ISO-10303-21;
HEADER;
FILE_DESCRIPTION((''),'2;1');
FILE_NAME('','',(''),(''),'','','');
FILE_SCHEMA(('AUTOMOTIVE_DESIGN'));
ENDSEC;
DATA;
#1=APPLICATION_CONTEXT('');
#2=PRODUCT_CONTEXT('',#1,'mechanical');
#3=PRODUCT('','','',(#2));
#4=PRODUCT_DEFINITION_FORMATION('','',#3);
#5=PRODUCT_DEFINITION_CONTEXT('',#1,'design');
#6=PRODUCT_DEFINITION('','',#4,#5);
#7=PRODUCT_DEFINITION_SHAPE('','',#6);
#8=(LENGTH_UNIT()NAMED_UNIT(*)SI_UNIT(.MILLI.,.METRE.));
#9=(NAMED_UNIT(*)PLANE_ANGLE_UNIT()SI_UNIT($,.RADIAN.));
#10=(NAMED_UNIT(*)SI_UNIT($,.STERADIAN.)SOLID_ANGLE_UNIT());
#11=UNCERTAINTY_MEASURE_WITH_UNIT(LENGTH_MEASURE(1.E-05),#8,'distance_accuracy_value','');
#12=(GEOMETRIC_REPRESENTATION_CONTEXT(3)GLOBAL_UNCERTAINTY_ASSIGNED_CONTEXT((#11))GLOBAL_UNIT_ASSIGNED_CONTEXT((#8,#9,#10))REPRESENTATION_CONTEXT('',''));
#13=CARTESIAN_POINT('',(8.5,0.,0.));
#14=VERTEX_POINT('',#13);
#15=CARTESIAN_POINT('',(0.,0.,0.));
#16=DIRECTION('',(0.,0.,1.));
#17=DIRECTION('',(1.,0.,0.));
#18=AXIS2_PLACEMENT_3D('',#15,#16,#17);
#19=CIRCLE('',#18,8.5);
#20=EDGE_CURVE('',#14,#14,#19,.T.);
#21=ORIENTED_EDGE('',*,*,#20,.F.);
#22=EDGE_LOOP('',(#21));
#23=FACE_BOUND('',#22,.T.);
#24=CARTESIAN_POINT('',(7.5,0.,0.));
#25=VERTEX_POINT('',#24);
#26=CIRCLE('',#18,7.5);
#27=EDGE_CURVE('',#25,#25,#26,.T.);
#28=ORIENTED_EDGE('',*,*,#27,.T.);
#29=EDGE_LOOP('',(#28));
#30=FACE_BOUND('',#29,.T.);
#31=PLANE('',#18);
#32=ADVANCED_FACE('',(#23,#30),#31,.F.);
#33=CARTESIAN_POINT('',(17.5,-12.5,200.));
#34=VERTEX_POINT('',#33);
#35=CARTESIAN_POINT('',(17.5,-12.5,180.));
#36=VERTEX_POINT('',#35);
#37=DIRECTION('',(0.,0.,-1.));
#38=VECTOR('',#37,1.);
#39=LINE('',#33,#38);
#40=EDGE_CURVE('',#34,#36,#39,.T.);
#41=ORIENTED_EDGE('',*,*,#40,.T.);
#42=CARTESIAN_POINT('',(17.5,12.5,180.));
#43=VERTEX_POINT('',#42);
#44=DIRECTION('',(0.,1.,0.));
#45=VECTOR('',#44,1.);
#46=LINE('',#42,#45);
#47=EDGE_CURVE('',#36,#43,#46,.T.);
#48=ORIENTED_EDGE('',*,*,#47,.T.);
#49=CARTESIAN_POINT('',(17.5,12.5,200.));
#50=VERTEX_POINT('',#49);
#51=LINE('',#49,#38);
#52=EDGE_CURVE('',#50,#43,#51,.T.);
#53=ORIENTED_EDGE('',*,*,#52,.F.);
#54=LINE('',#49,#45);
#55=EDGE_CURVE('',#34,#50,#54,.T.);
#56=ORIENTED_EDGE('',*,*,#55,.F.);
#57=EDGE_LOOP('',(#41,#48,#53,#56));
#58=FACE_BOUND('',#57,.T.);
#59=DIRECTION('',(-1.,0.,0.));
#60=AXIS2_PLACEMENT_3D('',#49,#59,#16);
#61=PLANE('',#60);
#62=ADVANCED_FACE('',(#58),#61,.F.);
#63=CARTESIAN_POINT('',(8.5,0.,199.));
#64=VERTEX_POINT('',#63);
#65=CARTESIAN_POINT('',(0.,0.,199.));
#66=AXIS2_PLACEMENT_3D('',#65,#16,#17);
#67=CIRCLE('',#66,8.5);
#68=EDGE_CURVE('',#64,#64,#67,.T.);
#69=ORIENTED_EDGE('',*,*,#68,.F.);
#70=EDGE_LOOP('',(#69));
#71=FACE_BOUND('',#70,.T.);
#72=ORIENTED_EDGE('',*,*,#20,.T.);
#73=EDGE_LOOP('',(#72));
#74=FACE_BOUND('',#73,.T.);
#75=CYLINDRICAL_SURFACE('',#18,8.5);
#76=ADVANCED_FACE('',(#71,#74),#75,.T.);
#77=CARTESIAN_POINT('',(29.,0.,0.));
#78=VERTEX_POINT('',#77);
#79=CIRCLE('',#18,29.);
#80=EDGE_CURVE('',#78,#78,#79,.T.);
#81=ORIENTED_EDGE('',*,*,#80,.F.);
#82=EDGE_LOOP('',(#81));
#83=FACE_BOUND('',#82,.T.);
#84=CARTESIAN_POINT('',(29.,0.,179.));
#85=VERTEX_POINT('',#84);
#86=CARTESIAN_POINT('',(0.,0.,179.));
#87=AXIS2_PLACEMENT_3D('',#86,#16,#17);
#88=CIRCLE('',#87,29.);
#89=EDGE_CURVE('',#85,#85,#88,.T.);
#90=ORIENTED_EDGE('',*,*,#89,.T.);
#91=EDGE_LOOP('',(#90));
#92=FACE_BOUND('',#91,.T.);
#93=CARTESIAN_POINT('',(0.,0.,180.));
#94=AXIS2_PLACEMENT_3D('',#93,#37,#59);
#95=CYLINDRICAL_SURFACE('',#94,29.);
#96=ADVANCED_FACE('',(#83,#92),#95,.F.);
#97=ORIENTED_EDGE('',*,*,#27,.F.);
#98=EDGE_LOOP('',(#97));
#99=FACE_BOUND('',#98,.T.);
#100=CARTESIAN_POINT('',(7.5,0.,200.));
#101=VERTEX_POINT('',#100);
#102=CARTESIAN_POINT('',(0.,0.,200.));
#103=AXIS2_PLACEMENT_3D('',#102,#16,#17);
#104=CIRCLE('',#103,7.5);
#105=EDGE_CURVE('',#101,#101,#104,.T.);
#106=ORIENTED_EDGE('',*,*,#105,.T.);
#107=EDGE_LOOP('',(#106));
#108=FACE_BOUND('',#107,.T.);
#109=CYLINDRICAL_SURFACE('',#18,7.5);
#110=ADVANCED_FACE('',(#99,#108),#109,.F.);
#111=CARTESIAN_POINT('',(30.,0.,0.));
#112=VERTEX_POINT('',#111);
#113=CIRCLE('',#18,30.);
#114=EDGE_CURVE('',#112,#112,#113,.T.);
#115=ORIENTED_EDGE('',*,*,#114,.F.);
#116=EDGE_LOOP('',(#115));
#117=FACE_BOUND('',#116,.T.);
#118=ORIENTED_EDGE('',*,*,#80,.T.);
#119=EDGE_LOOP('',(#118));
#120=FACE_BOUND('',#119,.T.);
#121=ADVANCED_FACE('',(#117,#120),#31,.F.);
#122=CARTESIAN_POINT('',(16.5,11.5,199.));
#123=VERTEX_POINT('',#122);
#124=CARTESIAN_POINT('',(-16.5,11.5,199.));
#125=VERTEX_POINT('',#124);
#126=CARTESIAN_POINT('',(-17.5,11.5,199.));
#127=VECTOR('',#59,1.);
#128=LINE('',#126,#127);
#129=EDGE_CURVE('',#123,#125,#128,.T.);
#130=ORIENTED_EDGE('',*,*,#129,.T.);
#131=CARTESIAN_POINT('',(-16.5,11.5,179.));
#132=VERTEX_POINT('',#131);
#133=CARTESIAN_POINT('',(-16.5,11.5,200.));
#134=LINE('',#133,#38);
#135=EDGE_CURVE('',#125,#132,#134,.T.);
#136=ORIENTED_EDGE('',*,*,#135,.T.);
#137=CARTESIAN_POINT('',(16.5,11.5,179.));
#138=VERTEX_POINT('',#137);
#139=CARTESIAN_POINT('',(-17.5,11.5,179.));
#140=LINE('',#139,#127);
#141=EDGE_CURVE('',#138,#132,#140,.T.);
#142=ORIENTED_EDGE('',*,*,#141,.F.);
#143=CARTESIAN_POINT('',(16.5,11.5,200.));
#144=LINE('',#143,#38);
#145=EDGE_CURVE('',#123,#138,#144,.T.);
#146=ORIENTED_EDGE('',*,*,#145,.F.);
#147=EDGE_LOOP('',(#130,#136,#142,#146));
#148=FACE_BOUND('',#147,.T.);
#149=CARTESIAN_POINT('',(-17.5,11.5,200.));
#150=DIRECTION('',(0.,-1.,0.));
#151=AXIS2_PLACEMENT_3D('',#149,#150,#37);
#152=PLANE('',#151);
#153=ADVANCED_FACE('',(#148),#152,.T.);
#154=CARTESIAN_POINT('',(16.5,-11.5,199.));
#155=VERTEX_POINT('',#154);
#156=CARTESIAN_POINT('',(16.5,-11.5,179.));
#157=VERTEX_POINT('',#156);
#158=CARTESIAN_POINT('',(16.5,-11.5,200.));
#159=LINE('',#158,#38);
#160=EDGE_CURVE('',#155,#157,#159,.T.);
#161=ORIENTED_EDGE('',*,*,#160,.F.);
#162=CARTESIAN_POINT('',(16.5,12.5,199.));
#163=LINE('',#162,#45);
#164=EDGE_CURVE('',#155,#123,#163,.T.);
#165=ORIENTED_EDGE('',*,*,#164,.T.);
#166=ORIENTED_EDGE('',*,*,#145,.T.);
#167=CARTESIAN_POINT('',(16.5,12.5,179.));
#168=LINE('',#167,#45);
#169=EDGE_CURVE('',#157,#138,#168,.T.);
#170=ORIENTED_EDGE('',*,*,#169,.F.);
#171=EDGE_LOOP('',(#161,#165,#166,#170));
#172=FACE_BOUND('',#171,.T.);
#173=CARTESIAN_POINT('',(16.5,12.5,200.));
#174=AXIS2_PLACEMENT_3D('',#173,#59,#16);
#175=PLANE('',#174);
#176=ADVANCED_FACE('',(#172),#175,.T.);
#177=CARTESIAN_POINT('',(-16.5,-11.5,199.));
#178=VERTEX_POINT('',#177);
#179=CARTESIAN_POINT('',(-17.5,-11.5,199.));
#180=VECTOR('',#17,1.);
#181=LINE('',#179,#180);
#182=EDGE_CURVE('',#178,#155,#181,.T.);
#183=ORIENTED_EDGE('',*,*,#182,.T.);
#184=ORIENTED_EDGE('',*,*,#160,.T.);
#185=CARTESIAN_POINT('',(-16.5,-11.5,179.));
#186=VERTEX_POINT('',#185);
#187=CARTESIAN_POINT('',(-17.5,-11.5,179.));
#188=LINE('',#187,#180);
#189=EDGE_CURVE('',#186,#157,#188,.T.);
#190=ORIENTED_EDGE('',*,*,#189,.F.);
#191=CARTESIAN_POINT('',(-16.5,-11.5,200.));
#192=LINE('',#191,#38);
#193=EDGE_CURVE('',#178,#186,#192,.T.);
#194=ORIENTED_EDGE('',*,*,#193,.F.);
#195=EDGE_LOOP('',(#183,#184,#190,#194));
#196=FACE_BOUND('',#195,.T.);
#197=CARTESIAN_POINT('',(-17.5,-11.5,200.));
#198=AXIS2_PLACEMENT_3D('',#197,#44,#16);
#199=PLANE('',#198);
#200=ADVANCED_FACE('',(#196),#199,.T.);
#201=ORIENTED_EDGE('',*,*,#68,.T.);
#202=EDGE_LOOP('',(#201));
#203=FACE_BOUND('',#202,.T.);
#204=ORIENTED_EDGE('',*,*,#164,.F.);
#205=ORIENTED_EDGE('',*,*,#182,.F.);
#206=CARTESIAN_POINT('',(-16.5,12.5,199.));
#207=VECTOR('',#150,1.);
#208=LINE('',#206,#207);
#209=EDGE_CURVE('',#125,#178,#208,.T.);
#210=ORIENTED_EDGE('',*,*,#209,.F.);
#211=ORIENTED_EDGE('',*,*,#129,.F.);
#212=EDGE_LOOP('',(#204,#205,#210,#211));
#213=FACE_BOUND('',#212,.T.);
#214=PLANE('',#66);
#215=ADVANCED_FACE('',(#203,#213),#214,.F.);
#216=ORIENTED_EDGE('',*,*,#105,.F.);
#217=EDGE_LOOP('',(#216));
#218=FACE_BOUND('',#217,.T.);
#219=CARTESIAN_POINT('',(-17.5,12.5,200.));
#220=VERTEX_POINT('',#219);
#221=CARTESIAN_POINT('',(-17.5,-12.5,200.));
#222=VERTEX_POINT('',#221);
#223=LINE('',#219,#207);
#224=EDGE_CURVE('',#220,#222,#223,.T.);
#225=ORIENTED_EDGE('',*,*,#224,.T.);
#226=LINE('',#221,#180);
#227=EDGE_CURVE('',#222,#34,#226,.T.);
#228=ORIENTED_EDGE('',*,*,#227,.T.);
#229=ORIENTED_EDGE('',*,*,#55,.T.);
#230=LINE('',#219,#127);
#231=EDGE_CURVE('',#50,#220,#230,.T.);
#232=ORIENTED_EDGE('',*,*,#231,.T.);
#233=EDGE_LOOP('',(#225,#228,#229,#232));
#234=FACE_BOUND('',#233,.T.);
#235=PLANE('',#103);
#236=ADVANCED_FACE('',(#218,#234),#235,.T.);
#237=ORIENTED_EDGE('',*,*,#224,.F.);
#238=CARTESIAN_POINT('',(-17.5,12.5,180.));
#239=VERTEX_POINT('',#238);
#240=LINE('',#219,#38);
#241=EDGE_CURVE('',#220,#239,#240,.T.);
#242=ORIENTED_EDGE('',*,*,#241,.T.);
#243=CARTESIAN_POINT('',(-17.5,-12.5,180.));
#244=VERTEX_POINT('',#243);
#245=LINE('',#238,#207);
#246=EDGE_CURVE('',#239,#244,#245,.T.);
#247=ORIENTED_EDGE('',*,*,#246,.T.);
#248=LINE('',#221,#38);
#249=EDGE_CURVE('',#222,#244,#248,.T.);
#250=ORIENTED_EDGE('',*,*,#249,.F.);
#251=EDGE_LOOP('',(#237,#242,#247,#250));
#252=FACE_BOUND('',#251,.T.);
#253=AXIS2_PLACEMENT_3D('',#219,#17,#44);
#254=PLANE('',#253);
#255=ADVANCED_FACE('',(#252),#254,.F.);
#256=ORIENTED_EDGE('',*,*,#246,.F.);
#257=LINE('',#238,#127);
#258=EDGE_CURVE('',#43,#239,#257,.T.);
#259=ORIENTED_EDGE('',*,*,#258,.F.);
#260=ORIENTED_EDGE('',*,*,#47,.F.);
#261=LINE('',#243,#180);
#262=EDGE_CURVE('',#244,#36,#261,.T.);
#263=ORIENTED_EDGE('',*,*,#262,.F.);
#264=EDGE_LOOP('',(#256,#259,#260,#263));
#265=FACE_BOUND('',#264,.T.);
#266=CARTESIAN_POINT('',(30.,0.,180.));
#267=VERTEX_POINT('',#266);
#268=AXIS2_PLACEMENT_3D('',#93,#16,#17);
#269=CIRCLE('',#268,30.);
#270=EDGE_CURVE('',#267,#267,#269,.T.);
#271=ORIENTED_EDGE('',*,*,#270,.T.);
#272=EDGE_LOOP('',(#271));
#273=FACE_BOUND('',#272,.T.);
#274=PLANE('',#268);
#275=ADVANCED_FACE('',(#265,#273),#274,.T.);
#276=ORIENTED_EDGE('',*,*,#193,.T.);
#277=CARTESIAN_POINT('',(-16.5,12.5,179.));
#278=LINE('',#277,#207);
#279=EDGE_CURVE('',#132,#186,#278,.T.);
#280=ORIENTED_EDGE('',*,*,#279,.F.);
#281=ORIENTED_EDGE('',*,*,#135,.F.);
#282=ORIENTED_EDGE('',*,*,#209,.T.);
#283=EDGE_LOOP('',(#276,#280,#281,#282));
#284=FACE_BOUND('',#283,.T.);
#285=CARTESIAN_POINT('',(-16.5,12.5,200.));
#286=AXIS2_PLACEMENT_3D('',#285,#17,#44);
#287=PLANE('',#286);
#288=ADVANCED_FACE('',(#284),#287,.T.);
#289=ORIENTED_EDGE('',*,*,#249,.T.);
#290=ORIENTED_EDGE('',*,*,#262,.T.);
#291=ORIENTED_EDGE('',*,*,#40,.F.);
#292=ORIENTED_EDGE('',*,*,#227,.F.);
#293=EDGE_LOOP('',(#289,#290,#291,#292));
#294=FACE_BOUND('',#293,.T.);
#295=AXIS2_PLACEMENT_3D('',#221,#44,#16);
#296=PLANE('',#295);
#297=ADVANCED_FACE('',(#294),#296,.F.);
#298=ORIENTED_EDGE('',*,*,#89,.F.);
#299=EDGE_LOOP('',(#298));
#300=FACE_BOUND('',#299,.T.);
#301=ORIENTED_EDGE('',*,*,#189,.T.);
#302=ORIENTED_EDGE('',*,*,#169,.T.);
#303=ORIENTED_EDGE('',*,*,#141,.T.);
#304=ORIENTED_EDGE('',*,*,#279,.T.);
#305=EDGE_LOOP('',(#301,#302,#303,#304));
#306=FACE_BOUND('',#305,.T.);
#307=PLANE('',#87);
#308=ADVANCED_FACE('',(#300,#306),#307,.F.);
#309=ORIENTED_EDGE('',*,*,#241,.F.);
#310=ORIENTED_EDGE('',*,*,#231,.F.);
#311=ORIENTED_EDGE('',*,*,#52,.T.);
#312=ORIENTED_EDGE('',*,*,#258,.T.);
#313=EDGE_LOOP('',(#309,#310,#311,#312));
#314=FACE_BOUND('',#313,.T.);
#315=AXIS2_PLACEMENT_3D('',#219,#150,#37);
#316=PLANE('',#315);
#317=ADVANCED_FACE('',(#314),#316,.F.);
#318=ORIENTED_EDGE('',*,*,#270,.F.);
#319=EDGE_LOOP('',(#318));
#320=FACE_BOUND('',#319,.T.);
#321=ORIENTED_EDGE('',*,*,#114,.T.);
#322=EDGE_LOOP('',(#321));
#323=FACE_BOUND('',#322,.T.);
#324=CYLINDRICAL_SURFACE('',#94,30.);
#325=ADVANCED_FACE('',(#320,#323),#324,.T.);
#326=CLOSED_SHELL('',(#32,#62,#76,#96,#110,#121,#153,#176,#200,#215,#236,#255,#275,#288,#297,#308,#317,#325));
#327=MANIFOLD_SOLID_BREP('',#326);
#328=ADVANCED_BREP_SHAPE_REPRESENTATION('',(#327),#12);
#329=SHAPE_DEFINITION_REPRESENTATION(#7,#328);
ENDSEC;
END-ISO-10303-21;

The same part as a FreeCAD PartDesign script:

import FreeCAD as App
import Part
import Sketcher


def faces_at(feature, points):
    """Names of the faces that lie closest to the given points."""
    faces = feature.Shape.Faces
    near = lambda p: min(range(len(faces)), key=lambda i: faces[i].distToShape(Part.Vertex(*p))[0])
    return sorted({f"Face{near(p) + 1}" for p in points})

doc = App.newDocument("Part")
body = doc.addObject("PartDesign::Body", "Body")

sketch1 = body.newObject("Sketcher::SketchObject", "Sketch")
sketch1.AttachmentSupport = (doc.getObject("XY_Plane"), [""])
sketch1.MapMode = "FlatFace"
sketch1.addGeometry(Part.Circle(App.Vector(0, 0, 0), App.Vector(0, 0, 1), 30), False)
sketch1.addConstraint(Sketcher.Constraint("Coincident", 0, 3, -1, 1))
sketch1.addConstraint(Sketcher.Constraint("Diameter", 0, 60.0))
pad1 = body.newObject("PartDesign::Pad", "Pad")
pad1.Profile = sketch1
pad1.Length = 180

sketch2 = body.newObject("Sketcher::SketchObject", "Sketch001")
sketch2.AttachmentSupport = (doc.getObject("XY_Plane"), [""])
sketch2.MapMode = "FlatFace"
sketch2.AttachmentOffset = App.Placement(App.Vector(0, 0, 180), App.Rotation())
sketch2.addGeometry(Part.LineSegment(App.Vector(-18, 12, 0), App.Vector(-18, -12, 0)), False)
sketch2.addGeometry(Part.LineSegment(App.Vector(-18, -12, 0), App.Vector(18, -12, 0)), False)
sketch2.addGeometry(Part.LineSegment(App.Vector(18, -12, 0), App.Vector(18, 12, 0)), False)
sketch2.addGeometry(Part.LineSegment(App.Vector(18, 12, 0), App.Vector(-18, 12, 0)), False)
sketch2.addConstraint(Sketcher.Constraint("Coincident", 0, 2, 1, 1))
sketch2.addConstraint(Sketcher.Constraint("Coincident", 1, 2, 2, 1))
sketch2.addConstraint(Sketcher.Constraint("Coincident", 2, 2, 3, 1))
sketch2.addConstraint(Sketcher.Constraint("Coincident", 3, 2, 0, 1))
sketch2.addConstraint(Sketcher.Constraint("Vertical", 0))
sketch2.addConstraint(Sketcher.Constraint("Horizontal", 1))
sketch2.addConstraint(Sketcher.Constraint("Vertical", 2))
sketch2.addConstraint(Sketcher.Constraint("Horizontal", 3))
sketch2.addConstraint(Sketcher.Constraint("Symmetric", 0, 2, 2, 2, -1, 1))
sketch2.addConstraint(Sketcher.Constraint("DistanceX", 1, 1, 1, 2, 35.0))
sketch2.addConstraint(Sketcher.Constraint("DistanceY", 0, 2, 0, 1, 25.0))
pad2 = body.newObject("PartDesign::Pad", "Pad001")
pad2.Profile = sketch2
pad2.Length = 20

sketch3 = body.newObject("Sketcher::SketchObject", "Sketch002")
sketch3.AttachmentSupport = (doc.getObject("XY_Plane"), [""])
sketch3.MapMode = "FlatFace"
sketch3.AttachmentOffset = App.Placement(App.Vector(0, 0, 200), App.Rotation())
sketch3.addGeometry(Part.Circle(App.Vector(0, 0, 0), App.Vector(0, 0, 1), 8), False)
sketch3.addConstraint(Sketcher.Constraint("Coincident", 0, 3, -1, 1))
sketch3.addConstraint(Sketcher.Constraint("Diameter", 0, 15.0))
pocket1 = body.newObject("PartDesign::Pocket", "Pocket")
pocket1.Profile = sketch3
pocket1.Type = "ThroughAll"
doc.recompute()

thickness = body.newObject("PartDesign::Thickness", "Thickness")
thickness.Base = (pocket1, faces_at(pocket1, [(-12, -12, 0)]))
thickness.Value = 1
thickness.Reversed = True
thickness.Join = "Intersection"

doc.recompute()
